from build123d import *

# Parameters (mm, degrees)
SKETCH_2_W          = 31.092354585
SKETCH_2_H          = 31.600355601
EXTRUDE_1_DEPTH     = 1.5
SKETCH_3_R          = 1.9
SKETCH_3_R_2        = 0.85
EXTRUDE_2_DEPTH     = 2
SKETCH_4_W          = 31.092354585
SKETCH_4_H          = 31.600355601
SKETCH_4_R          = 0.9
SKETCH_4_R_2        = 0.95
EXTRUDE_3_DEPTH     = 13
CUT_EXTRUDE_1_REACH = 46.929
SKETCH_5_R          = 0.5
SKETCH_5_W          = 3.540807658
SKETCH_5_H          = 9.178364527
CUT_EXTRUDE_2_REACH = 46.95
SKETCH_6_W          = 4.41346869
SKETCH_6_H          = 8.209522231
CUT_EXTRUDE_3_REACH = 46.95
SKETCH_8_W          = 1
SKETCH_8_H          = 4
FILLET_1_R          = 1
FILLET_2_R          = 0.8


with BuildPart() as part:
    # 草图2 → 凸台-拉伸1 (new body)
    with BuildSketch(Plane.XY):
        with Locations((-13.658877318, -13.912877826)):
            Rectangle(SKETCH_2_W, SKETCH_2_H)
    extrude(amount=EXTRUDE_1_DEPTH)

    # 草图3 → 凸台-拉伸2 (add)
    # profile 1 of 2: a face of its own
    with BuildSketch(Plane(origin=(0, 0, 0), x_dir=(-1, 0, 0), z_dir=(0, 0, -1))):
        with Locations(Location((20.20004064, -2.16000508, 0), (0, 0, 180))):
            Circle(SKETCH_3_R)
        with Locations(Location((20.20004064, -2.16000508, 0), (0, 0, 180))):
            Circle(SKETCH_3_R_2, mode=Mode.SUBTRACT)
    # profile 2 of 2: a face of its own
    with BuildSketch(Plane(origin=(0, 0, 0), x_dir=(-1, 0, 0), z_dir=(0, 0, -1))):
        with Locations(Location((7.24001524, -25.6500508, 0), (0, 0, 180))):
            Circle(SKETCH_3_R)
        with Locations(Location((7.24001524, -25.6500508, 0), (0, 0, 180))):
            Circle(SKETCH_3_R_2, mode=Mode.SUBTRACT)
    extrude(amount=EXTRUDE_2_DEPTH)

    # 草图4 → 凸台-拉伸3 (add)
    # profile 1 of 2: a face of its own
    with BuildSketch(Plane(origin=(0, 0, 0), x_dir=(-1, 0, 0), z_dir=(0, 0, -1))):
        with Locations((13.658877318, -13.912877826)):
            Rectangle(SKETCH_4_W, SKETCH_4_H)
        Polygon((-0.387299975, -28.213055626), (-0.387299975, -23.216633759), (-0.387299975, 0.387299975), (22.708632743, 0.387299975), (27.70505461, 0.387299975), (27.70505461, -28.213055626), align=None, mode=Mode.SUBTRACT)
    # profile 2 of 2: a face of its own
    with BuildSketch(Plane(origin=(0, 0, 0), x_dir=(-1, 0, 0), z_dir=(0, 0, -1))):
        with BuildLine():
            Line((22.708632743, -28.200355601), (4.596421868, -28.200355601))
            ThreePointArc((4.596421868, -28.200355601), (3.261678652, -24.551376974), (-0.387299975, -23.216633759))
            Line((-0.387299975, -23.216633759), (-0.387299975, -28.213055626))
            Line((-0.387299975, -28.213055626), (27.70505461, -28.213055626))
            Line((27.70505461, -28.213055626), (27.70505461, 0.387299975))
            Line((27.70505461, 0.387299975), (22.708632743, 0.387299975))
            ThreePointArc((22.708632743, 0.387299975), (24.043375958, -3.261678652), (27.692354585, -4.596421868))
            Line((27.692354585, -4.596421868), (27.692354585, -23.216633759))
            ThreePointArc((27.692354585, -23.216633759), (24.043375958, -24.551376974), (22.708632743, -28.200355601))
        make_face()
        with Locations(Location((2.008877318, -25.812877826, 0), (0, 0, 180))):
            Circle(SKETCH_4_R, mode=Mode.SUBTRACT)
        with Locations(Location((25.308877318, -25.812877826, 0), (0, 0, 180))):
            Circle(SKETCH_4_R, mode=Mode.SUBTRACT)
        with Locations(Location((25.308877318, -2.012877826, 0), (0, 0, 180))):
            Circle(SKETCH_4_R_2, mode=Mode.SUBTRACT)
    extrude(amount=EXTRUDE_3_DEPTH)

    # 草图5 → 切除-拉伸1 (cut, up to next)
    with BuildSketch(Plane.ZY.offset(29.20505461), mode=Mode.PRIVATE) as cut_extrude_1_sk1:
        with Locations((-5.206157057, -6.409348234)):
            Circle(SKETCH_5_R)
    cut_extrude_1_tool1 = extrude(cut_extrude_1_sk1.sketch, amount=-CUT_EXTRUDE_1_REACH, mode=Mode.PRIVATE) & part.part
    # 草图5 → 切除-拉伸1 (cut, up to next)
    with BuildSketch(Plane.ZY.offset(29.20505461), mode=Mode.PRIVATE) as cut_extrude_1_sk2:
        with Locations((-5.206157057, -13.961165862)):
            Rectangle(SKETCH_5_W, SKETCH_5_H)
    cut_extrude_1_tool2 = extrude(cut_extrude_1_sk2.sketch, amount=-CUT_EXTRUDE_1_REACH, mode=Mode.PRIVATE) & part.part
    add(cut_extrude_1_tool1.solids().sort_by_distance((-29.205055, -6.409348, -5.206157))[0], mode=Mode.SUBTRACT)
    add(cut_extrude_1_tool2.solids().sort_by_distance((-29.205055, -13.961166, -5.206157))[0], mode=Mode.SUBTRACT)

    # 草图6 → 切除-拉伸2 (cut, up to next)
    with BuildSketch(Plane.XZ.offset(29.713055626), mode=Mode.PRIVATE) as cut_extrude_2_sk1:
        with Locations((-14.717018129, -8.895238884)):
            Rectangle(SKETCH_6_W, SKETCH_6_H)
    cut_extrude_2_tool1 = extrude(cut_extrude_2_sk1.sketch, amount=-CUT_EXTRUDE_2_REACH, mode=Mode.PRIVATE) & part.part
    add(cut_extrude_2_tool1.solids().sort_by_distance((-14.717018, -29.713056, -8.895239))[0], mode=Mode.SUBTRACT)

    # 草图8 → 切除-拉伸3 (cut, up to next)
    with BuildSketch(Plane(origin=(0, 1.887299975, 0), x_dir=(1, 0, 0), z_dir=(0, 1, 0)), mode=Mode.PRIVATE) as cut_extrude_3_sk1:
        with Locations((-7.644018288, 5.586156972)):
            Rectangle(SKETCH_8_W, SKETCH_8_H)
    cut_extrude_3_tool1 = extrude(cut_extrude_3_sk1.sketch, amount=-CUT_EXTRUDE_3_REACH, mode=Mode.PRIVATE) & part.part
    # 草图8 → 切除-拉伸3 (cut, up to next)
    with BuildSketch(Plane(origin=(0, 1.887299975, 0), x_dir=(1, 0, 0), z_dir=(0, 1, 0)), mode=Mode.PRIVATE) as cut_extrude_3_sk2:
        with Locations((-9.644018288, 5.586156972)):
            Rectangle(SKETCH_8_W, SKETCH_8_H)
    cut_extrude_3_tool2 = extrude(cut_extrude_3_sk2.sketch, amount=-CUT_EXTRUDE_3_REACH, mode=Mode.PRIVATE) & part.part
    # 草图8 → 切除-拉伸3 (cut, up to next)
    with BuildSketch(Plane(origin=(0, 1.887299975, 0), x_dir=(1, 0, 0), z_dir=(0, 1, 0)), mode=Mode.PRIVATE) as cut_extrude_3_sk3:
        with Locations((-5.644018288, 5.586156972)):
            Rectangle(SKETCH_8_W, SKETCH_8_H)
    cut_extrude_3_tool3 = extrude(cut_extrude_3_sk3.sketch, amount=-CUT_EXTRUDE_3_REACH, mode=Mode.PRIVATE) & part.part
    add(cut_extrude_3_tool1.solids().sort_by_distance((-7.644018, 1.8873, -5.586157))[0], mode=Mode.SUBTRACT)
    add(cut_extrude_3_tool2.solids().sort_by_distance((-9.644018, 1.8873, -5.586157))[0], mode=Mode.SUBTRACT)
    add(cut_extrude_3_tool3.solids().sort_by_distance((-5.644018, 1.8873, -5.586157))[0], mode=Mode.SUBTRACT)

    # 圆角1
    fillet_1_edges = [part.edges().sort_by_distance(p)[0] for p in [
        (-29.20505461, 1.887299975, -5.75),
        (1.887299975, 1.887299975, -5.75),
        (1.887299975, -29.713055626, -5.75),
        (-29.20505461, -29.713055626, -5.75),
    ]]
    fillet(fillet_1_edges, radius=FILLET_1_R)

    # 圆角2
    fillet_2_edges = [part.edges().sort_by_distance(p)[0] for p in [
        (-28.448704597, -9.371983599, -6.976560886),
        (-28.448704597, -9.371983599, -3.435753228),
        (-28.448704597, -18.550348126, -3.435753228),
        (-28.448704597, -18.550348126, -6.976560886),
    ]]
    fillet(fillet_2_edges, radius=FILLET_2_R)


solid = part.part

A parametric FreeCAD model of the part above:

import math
import FreeCAD as App
import Part
import Sketcher
Q = App.Units.Quantity


def edges_at(feature, points):
    """Names of the edges that pass closest to the given points."""
    edges = feature.Shape.Edges
    near = lambda p: min(range(len(edges)), key=lambda i: edges[i].distToShape(Part.Vertex(*p))[0])
    return sorted({f"Edge{near(p) + 1}" for p in points})


def add_polygon(sketch, points):
    """Adds a closed chain of lines whose ends are joined by coincident constraints."""
    first, n = sketch.GeometryCount, len(points)
    for a, b in zip(points, points[1:] + points[:1]):
        sketch.addGeometry(Part.LineSegment(App.Vector(*a, 0), App.Vector(*b, 0)), False)
    for i in range(n):
        sketch.addConstraint(Sketcher.Constraint("Coincident", first + i, 2, first + (i + 1) % n, 1))

doc = App.newDocument("Part")
body = doc.addObject("PartDesign::Body", "Body")

# Sketch on XY plane
sketch1 = doc.addObject("Sketcher::SketchObject", "Sketch")
body.addObject(sketch1)
sketch1.AttachmentSupport = (doc.XY_Plane, [""])
sketch1.MapMode = "FlatFace"
add_polygon(sketch1, [(-29.205055, 1.8873), (-29.205055, -29.713056), (1.8873, -29.713056), (1.8873, 1.8873)])  # lines 0-3
sketch1.addConstraint([
    Sketcher.Constraint("Vertical", 0),
    Sketcher.Constraint("Horizontal", 1),
    Sketcher.Constraint("Vertical", 2),
    Sketcher.Constraint("Horizontal", 3),
    Sketcher.Constraint("DistanceX", -1, 1, 1, 2, Q("1.8873 mm")),
    Sketcher.Constraint("DistanceY", -1, 1, 2, 2, Q("1.8873 mm")),
    Sketcher.Constraint("DistanceX", 1, 1, 1, 2, Q("31.092355 mm")),
    Sketcher.Constraint("DistanceY", 0, 2, 0, 1, Q("31.600356 mm")),
])
pad1 = doc.addObject("PartDesign::Pad", "Pad")
body.addObject(pad1)
pad1.Profile = sketch1
pad1.Length = 1.5

# Sketch on XY plane
sketch2 = doc.addObject("Sketcher::SketchObject", "Sketch001")
body.addObject(sketch2)
sketch2.AttachmentSupport = (doc.XY_Plane, [""])
sketch2.MapMode = "FlatFace"
sketch2.addGeometry([
    Part.Circle(App.Vector(-20.200041, -2.160005, 0), App.Vector(0, 0, 1), 1.9),
    Part.Circle(App.Vector(-20.200041, -2.160005, 0), App.Vector(0, 0, 1), 0.85),
    Part.Circle(App.Vector(-7.240015, -25.650051, 0), App.Vector(0, 0, 1), 1.9),
    Part.Circle(App.Vector(-7.240015, -25.650051, 0), App.Vector(0, 0, 1), 0.85),
], False)
sketch2.addConstraint([
    Sketcher.Constraint("Coincident", 1, 3, 0, 3),
    Sketcher.Constraint("Coincident", 3, 3, 2, 3),
    Sketcher.Constraint("Equal", 0, 2),
    Sketcher.Constraint("Equal", 1, 3),
    Sketcher.Constraint("Diameter", 0, Q("3.8 mm")),
    Sketcher.Constraint("Diameter", 1, Q("1.7 mm")),
    Sketcher.Constraint("DistanceX", 0, 3, -1, 1, Q("20.200041 mm")),
    Sketcher.Constraint("DistanceY", 2, 3, -1, 1, Q("25.650051 mm")),
    Sketcher.Constraint("DistanceY", 0, 3, -1, 1, Q("2.160005 mm")),
    Sketcher.Constraint("DistanceX", 2, 3, -1, 1, Q("7.240015 mm")),
])
pad2 = doc.addObject("PartDesign::Pad", "Pad001")
body.addObject(pad2)
pad2.Profile = sketch2
pad2.Length = 2
pad2.Reversed = True

# Sketch on XY plane
sketch3 = doc.addObject("Sketcher::SketchObject", "Sketch002")
body.addObject(sketch3)
sketch3.AttachmentSupport = (doc.XY_Plane, [""])
sketch3.MapMode = "FlatFace"
add_polygon(sketch3, [(1.8873, 1.8873), (1.8873, -29.713056), (-29.205055, -29.713056), (-29.205055, 1.8873)])  # lines 0-3
sketch3.addGeometry(Part.LineSegment(App.Vector(0.3873, -23.216634, 0), App.Vector(0.3873, 0.3873, 0)), False)  # 4
sketch3.addGeometry(Part.LineSegment(App.Vector(0.3873, 0.3873, 0), App.Vector(-22.708633, 0.3873, 0)), False)  # 5
sketch3.addGeometry(Part.ArcOfCircle(Part.Circle(App.Vector(-27.305055, 0, 0), App.Vector(0, 0, 1), 4.61271), math.radians(-94.816433), math.radians(4.816433)), False)  # 6
sketch3.addGeometry(Part.LineSegment(App.Vector(-27.692355, -4.596422, 0), App.Vector(-27.692355, -23.216634, 0)), False)  # 7
sketch3.addGeometry(Part.ArcOfCircle(Part.Circle(App.Vector(-27.305055, -27.813056, 0), App.Vector(0, 0, 1), 4.61271), math.radians(-4.816433), math.radians(94.816433)), False)  # 8
sketch3.addGeometry(Part.LineSegment(App.Vector(-22.708633, -28.200356, 0), App.Vector(-4.596422, -28.200356, 0)), False)  # 9
sketch3.addGeometry(Part.ArcOfCircle(Part.Circle(App.Vector(0, -27.813056, 0), App.Vector(0, 0, 1), 4.61271), math.radians(85.183567), math.radians(184.816433)), False)  # 10
sketch3.addGeometry(Part.Circle(App.Vector(-25.308877, -25.812878, 0), App.Vector(0, 0, 1), 0.9), False)  # 11
sketch3.addGeometry(Part.Circle(App.Vector(-25.308877, -2.012878, 0), App.Vector(0, 0, 1), 0.95), False)  # 12
sketch3.addGeometry(Part.Circle(App.Vector(-2.008877, -25.812878, 0), App.Vector(0, 0, 1), 0.9), False)  # 13
sketch3.addConstraint([
    Sketcher.Constraint("Coincident", 4, 2, 5, 1),
    Sketcher.Constraint("Coincident", 5, 2, 6, 2),
    Sketcher.Constraint("Coincident", 6, 1, 7, 1),
    Sketcher.Constraint("Coincident", 7, 2, 8, 2),
    Sketcher.Constraint("Coincident", 8, 1, 9, 1),
    Sketcher.Constraint("Coincident", 9, 2, 10, 2),
    Sketcher.Constraint("Coincident", 10, 1, 4, 1),
    Sketcher.Constraint("Vertical", 0),
    Sketcher.Constraint("Horizontal", 1),
    Sketcher.Constraint("Vertical", 2),
    Sketcher.Constraint("Horizontal", 3),
    Sketcher.Constraint("Vertical", 4),
    Sketcher.Constraint("Horizontal", 5),
    Sketcher.Constraint("Vertical", 7),
    Sketcher.Constraint("Horizontal", 9),
    Sketcher.Constraint("Equal", 6, 8),
    Sketcher.Constraint("Equal", 8, 10),
    Sketcher.Constraint("Equal", 11, 13),
    Sketcher.Constraint("PointOnObject", 6, 3, -1),
    Sketcher.Constraint("PointOnObject", 10, 3, -2),
    Sketcher.Constraint("Horizontal", 8, 3, 10, 3),
    Sketcher.Constraint("Horizontal", 11, 3, 13, 3),
    Sketcher.Constraint("Horizontal", 7, 2, 10, 1),
    Sketcher.Constraint("Vertical", 6, 3, 8, 3),
    Sketcher.Constraint("Vertical", 11, 3, 12, 3),
    Sketcher.Constraint("Vertical", 5, 2, 8, 1),
    Sketcher.Constraint("Diameter", 11, Q("1.8 mm")),
    Sketcher.Constraint("Diameter", 12, Q("1.9 mm")),
    Sketcher.Constraint("DistanceY", 11, 3, 12, 3, Q("23.8 mm")),
    Sketcher.Constraint("DistanceX", 11, 3, 13, 3, Q("23.3 mm")),
    Sketcher.Constraint("DistanceY", 0, 2, 10, 3, Q("1.9 mm")),
    Sketcher.Constraint("DistanceX", 1, 2, 8, 3, Q("1.9 mm")),
    Sketcher.Constraint("DistanceX", 4, 2, 3, 2, Q("1.5 mm")),
    Sketcher.Constraint("DistanceY", 4, 2, 3, 2, Q("1.5 mm")),
    Sketcher.Constraint("Radius", 6, Q("4.61271 mm")),
    Sketcher.Constraint("DistanceX", 9, 1, 9, 2, Q("18.112211 mm")),
    Sketcher.Constraint("DistanceY", 7, 2, 7, 1, Q("18.620212 mm")),
    Sketcher.Constraint("DistanceX", -1, 1, 0, 2, Q("1.8873 mm")),
    Sketcher.Constraint("DistanceY", -1, 1, 2, 2, Q("1.8873 mm")),
    Sketcher.Constraint("DistanceX", 11, 3, -1, 1, Q("25.308877 mm")),
    Sketcher.Constraint("DistanceY", 11, 3, -1, 1, Q("25.812878 mm")),
])
pad3 = doc.addObject("PartDesign::Pad", "Pad002")
body.addObject(pad3)
pad3.Profile = sketch3
pad3.Length = 13
pad3.Reversed = True

# Sketch on YZ plane
sketch4 = doc.addObject("Sketcher::SketchObject", "Sketch003")
body.addObject(sketch4)
sketch4.AttachmentSupport = (doc.YZ_Plane, [""])
sketch4.MapMode = "FlatFace"
sketch4.AttachmentOffset = App.Placement(App.Vector(0, 0, -29.205055), App.Rotation())
sketch4.addGeometry(Part.Circle(App.Vector(-6.409348, -5.206157, 0), App.Vector(0, 0, 1), 0.5), False)
sketch4.addConstraint([
    Sketcher.Constraint("Diameter", 0, Q("1 mm")),
    Sketcher.Constraint("DistanceX", 0, 3, -1, 1, Q("6.409348 mm")),
    Sketcher.Constraint("DistanceY", 0, 3, -1, 1, Q("5.206157 mm")),
])
pocket1 = doc.addObject("PartDesign::Pocket", "Pocket")
body.addObject(pocket1)
pocket1.Profile = sketch4
pocket1.Type = "UpToFirst"
pocket1.Reversed = True

# Sketch on YZ plane
sketch5 = doc.addObject("Sketcher::SketchObject", "Sketch004")
body.addObject(sketch5)
sketch5.AttachmentSupport = (doc.YZ_Plane, [""])
sketch5.MapMode = "FlatFace"
sketch5.AttachmentOffset = App.Placement(App.Vector(0, 0, -29.205055), App.Rotation())
add_polygon(sketch5, [(-9.371984, -6.976561), (-18.550348, -6.976561), (-18.550348, -3.435753), (-9.371984, -3.435753)])  # lines 0-3
sketch5.addConstraint([
    Sketcher.Constraint("Horizontal", 0),
    Sketcher.Constraint("Vertical", 1),
    Sketcher.Constraint("Horizontal", 2),
    Sketcher.Constraint("Vertical", 3),
    Sketcher.Constraint("DistanceX", 0, 2, 0, 1, Q("9.178365 mm")),
    Sketcher.Constraint("DistanceY", 1, 1, 1, 2, Q("3.540808 mm")),
    Sketcher.Constraint("DistanceX", 0, 2, -1, 1, Q("18.550348 mm")),
    Sketcher.Constraint("DistanceY", 0, 2, -1, 1, Q("6.976561 mm")),
])
pocket2 = doc.addObject("PartDesign::Pocket", "Pocket001")
body.addObject(pocket2)
pocket2.Profile = sketch5
pocket2.Type = "UpToFirst"
pocket2.Reversed = True

# Sketch on XZ plane
sketch6 = doc.addObject("Sketcher::SketchObject", "Sketch005")
body.addObject(sketch6)
sketch6.AttachmentSupport = (doc.XZ_Plane, [""])
sketch6.MapMode = "FlatFace"
sketch6.AttachmentOffset = App.Placement(App.Vector(0, 0, 29.713056), App.Rotation())
add_polygon(sketch6, [(-16.923752, -4.790478), (-16.923752, -13), (-12.510284, -13), (-12.510284, -4.790478)])  # lines 0-3
sketch6.addConstraint([
    Sketcher.Constraint("Vertical", 0),
    Sketcher.Constraint("Horizontal", 1),
    Sketcher.Constraint("Vertical", 2),
    Sketcher.Constraint("Horizontal", 3),
    Sketcher.Constraint("DistanceY", 0, 2, -1, 1, Q("13 mm")),
    Sketcher.Constraint("DistanceX", 1, 1, 1, 2, Q("4.413469 mm")),
    Sketcher.Constraint("DistanceY", 0, 2, 0, 1, Q("8.209522 mm")),
    Sketcher.Constraint("DistanceX", 0, 2, -1, 1, Q("16.923752 mm")),
])
pocket3 = doc.addObject("PartDesign::Pocket", "Pocket002")
body.addObject(pocket3)
pocket3.Profile = sketch6
pocket3.Type = "UpToFirst"

# Sketch on XZ plane
sketch7 = doc.addObject("Sketcher::SketchObject", "Sketch006")
body.addObject(sketch7)
sketch7.AttachmentSupport = (doc.XZ_Plane, [""])
sketch7.MapMode = "FlatFace"
sketch7.AttachmentOffset = App.Placement(App.Vector(0, 0, -1.8873), App.Rotation())
add_polygon(sketch7, [(-8.144018, -7.586157), (-8.144018, -3.586157), (-7.144018, -3.586157), (-7.144018, -7.586157)])  # lines 0-3
sketch7.addConstraint([
    Sketcher.Constraint("Vertical", 0),
    Sketcher.Constraint("Horizontal", 1),
    Sketcher.Constraint("Vertical", 2),
    Sketcher.Constraint("Horizontal", 3),
    Sketcher.Constraint("DistanceX", 1, 1, 1, 2, Q("1 mm")),
    Sketcher.Constraint("DistanceY", 0, 1, 0, 2, Q("4 mm")),
    Sketcher.Constraint("DistanceX", 0, 2, -1, 1, Q("8.144018 mm")),
    Sketcher.Constraint("DistanceY", 0, 2, -1, 1, Q("3.586157 mm")),
])
pocket4 = doc.addObject("PartDesign::Pocket", "Pocket003")
body.addObject(pocket4)
pocket4.Profile = sketch7
pocket4.Type = "UpToFirst"
pocket4.Reversed = True

# Sketch on XZ plane
sketch8 = doc.addObject("Sketcher::SketchObject", "Sketch007")
body.addObject(sketch8)
sketch8.AttachmentSupport = (doc.XZ_Plane, [""])
sketch8.MapMode = "FlatFace"
sketch8.AttachmentOffset = App.Placement(App.Vector(0, 0, -1.8873), App.Rotation())
add_polygon(sketch8, [(-10.144018, -7.586157), (-10.144018, -3.586157), (-9.144018, -3.586157), (-9.144018, -7.586157)])  # lines 0-3
sketch8.addConstraint([
    Sketcher.Constraint("Vertical", 0),
    Sketcher.Constraint("Horizontal", 1),
    Sketcher.Constraint("Vertical", 2),
    Sketcher.Constraint("Horizontal", 3),
    Sketcher.Constraint("DistanceX", 1, 1, 1, 2, Q("1 mm")),
    Sketcher.Constraint("DistanceY", 0, 1, 0, 2, Q("4 mm")),
    Sketcher.Constraint("DistanceX", 0, 2, -1, 1, Q("10.144018 mm")),
    Sketcher.Constraint("DistanceY", 0, 2, -1, 1, Q("3.586157 mm")),
])
pocket5 = doc.addObject("PartDesign::Pocket", "Pocket004")
body.addObject(pocket5)
pocket5.Profile = sketch8
pocket5.Type = "UpToFirst"
pocket5.Reversed = True

# Sketch on XZ plane
sketch9 = doc.addObject("Sketcher::SketchObject", "Sketch008")
body.addObject(sketch9)
sketch9.AttachmentSupport = (doc.XZ_Plane, [""])
sketch9.MapMode = "FlatFace"
sketch9.AttachmentOffset = App.Placement(App.Vector(0, 0, -1.8873), App.Rotation())
add_polygon(sketch9, [(-6.144018, -7.586157), (-6.144018, -3.586157), (-5.144018, -3.586157), (-5.144018, -7.586157)])  # lines 0-3
sketch9.addConstraint([
    Sketcher.Constraint("Vertical", 0),
    Sketcher.Constraint("Horizontal", 1),
    Sketcher.Constraint("Vertical", 2),
    Sketcher.Constraint("Horizontal", 3),
    Sketcher.Constraint("DistanceX", 1, 1, 1, 2, Q("1 mm")),
    Sketcher.Constraint("DistanceY", 0, 1, 0, 2, Q("4 mm")),
    Sketcher.Constraint("DistanceX", 0, 2, -1, 1, Q("6.144018 mm")),
    Sketcher.Constraint("DistanceY", 0, 2, -1, 1, Q("3.586157 mm")),
])
pocket6 = doc.addObject("PartDesign::Pocket", "Pocket005")
body.addObject(pocket6)
pocket6.Profile = sketch9
pocket6.Type = "UpToFirst"
pocket6.Reversed = True
doc.recompute()

fillet = doc.addObject("PartDesign::Fillet", "Fillet")
body.addObject(fillet)
fillet.Base = (pocket6, edges_at(pocket6, [
    (-29.205, 1.887, -5.75),
    (1.887, 1.887, -5.75),
    (1.887, -29.713, -5.75),
    (-29.205, -29.713, -5.75),
]))
fillet.Radius = 1
doc.recompute()

fillet2 = doc.addObject("PartDesign::Fillet", "Fillet001")
body.addObject(fillet2)
fillet2.Base = (fillet, edges_at(fillet, [
    (-28.449, -9.372, -6.977),
    (-28.449, -9.372, -3.436),
    (-28.449, -18.55, -3.436),
    (-28.449, -18.55, -6.977),
]))
fillet2.Radius = 0.8

doc.recompute()
